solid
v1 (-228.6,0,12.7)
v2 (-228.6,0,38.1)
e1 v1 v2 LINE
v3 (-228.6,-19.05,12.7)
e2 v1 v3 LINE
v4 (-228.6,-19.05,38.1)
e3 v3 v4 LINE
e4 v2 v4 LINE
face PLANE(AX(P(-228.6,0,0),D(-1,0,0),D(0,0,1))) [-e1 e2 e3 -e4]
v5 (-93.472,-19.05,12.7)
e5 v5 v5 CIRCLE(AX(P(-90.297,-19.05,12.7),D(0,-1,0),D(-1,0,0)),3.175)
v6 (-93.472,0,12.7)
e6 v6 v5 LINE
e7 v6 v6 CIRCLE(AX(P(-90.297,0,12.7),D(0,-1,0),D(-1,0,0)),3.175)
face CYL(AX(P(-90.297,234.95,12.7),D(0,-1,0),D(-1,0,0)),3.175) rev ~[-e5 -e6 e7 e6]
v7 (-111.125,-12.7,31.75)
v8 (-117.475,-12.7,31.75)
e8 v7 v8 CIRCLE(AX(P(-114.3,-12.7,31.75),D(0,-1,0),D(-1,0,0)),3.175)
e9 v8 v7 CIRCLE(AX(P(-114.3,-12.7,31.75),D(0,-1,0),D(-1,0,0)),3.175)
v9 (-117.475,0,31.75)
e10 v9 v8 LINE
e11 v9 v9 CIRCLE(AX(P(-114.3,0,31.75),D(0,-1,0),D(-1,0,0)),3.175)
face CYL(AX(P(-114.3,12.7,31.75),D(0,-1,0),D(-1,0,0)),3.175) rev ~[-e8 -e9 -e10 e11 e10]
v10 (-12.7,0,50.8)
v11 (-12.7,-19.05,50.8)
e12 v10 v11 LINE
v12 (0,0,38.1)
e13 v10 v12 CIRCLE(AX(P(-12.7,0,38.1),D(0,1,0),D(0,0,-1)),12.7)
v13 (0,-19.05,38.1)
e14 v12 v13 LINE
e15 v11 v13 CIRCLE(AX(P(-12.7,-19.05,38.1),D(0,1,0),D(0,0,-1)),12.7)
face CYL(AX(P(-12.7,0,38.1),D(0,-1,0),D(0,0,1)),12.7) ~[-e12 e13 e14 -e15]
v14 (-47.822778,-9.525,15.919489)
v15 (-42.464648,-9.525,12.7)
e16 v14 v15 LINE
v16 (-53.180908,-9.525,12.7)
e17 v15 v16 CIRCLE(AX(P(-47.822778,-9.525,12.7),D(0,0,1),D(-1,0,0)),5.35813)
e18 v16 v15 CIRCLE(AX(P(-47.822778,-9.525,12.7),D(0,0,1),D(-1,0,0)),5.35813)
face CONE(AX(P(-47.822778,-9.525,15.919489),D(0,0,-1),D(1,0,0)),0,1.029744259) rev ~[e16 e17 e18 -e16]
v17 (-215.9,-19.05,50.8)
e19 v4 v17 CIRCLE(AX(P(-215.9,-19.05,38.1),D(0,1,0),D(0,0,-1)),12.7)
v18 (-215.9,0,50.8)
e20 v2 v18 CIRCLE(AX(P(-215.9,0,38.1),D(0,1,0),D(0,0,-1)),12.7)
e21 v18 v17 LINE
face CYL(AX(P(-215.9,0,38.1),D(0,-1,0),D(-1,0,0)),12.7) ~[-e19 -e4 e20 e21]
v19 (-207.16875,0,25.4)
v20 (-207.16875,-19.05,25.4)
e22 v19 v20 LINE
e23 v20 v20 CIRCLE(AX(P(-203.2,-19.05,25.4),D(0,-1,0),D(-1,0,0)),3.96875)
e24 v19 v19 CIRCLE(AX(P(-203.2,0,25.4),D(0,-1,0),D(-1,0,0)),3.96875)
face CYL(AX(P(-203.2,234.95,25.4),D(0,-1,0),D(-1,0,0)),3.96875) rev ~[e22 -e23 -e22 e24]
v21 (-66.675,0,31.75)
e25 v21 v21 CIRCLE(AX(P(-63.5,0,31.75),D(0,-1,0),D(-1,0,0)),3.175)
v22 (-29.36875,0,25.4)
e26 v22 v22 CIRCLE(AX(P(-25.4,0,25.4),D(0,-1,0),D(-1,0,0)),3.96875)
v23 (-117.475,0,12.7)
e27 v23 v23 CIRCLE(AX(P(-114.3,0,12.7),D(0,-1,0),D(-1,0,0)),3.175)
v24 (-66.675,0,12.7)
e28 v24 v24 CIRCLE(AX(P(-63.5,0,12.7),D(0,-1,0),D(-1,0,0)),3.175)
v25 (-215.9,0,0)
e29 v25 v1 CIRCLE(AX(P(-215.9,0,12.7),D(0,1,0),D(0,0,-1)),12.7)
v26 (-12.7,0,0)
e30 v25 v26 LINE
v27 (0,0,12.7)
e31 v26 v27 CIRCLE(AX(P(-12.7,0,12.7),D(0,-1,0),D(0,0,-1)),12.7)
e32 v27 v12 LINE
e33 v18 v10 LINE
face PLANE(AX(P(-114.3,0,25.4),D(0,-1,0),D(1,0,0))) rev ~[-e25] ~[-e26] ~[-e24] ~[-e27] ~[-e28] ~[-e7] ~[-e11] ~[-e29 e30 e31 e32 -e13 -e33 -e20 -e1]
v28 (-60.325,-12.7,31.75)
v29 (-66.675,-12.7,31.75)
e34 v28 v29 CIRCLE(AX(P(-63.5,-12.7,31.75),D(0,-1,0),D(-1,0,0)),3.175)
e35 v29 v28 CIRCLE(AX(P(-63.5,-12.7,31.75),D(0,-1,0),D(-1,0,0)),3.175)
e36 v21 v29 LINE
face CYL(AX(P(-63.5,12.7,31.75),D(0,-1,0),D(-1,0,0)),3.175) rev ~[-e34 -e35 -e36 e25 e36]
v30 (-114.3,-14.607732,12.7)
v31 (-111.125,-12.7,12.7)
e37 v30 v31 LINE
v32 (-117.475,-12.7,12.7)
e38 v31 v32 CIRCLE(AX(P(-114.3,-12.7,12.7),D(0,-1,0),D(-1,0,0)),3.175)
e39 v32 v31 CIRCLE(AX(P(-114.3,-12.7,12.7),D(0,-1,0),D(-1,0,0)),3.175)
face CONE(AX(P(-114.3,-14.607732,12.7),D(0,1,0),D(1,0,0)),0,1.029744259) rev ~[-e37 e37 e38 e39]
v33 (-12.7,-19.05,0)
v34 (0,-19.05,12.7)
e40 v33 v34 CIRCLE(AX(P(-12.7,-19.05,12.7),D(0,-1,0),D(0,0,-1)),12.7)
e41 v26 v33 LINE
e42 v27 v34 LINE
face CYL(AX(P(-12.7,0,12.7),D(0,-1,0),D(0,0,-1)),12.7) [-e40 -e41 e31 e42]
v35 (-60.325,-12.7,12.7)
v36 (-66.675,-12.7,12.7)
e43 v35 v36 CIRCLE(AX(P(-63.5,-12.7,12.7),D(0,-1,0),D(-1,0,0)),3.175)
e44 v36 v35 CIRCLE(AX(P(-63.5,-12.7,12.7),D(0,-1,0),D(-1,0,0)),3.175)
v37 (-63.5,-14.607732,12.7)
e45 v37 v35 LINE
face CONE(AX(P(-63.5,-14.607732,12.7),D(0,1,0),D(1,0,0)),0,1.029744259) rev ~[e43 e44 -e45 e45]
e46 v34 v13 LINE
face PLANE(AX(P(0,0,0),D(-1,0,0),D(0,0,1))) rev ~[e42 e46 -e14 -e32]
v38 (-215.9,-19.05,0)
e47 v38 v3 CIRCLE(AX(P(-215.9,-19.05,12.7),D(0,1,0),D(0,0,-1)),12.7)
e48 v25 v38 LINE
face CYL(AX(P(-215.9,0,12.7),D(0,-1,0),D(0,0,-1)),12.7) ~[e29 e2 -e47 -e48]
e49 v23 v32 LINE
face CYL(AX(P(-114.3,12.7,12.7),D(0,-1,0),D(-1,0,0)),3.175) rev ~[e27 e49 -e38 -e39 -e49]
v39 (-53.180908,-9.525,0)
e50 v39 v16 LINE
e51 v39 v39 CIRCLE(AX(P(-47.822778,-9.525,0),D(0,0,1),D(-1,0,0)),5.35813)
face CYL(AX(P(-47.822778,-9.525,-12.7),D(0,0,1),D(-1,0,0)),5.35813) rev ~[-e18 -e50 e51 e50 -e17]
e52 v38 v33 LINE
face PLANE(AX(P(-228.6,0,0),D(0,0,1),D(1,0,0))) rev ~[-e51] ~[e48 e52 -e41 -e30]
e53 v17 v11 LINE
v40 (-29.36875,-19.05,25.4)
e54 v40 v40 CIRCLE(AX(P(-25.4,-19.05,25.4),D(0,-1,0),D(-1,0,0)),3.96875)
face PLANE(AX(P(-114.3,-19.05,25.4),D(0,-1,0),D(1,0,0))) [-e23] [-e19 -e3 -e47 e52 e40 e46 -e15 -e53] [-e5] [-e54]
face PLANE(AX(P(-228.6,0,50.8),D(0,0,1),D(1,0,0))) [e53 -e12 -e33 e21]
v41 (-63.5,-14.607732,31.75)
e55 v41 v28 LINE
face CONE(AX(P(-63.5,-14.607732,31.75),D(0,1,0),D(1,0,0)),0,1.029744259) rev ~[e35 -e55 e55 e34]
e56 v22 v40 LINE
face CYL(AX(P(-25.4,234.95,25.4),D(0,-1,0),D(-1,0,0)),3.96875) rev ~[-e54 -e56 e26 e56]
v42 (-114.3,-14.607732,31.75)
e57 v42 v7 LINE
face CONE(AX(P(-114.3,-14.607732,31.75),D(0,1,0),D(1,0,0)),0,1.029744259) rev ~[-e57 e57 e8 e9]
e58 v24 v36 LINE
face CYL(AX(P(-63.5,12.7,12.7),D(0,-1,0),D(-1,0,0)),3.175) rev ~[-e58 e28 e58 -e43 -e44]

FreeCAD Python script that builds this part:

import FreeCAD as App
import Part
import Sketcher

V = App.Vector
Q = App.Units.Quantity


def edges_at(feature, points):
    """Names of the edges that pass closest to the given points."""
    edges = feature.Shape.Edges
    near = lambda p: min(range(len(edges)), key=lambda i: edges[i].distToShape(Part.Vertex(*p))[0])
    return sorted({f"Edge{near(p) + 1}" for p in points})


def add_polygon(sketch, points):
    """Adds a closed chain of lines whose ends are joined by coincident constraints."""
    first, n = sketch.GeometryCount, len(points)
    for a, b in zip(points, points[1:] + points[:1]):
        sketch.addGeometry(Part.LineSegment(App.Vector(*a, 0), App.Vector(*b, 0)), False)
    for i in range(n):
        sketch.addConstraint(Sketcher.Constraint("Coincident", first + i, 2, first + (i + 1) % n, 1))

doc = App.newDocument("Part")
body = doc.addObject("PartDesign::Body", "Body")

# Sketch on XZ plane
sketch1 = doc.addObject("Sketcher::SketchObject", "Sketch")
body.addObject(sketch1)
sketch1.AttachmentSupport = (doc.XZ_Plane, [""])
sketch1.MapMode = "FlatFace"
add_polygon(sketch1, [(-229, 51), (-229, 0), (0, 0), (0, 51)])  # lines 0-3
sketch1.addConstraint(Sketcher.Constraint("Vertical", 0))
sketch1.addConstraint(Sketcher.Constraint("Horizontal", 1))
sketch1.addConstraint(Sketcher.Constraint("Vertical", 2))
sketch1.addConstraint(Sketcher.Constraint("Horizontal", 3))
sketch1.addConstraint(Sketcher.Constraint("Coincident", 1, 2, -1, 1))
sketch1.addConstraint(Sketcher.Constraint("DistanceX", 1, 1, 1, 2, Q("9 in")))
sketch1.addConstraint(Sketcher.Constraint("DistanceY", 0, 2, 0, 1, Q("2 in")))
pad1 = doc.addObject("PartDesign::Pad", "Pad")
body.addObject(pad1)
pad1.Profile = sketch1
pad1.Length = Q("0.75 in")

# Sketch on XZ plane
sketch2 = doc.addObject("Sketcher::SketchObject", "Sketch001")
body.addObject(sketch2)
sketch2.AttachmentSupport = (doc.XZ_Plane, [""])
sketch2.MapMode = "FlatFace"
sketch2.addGeometry(Part.Circle(V(-203.2, 25.4, 0), V(0, 0, 1), 4), False)
sketch2.addGeometry(Part.Circle(V(-25.4, 25.4, 0), V(0, 0, 1), 4), False)
sketch2.addConstraint(Sketcher.Constraint("Equal", 0, 1))
sketch2.addConstraint(Sketcher.Constraint("Horizontal", 0, 3, 1, 3))
sketch2.addConstraint(Sketcher.Constraint("Diameter", 0, Q("0.3125 in")))
sketch2.addConstraint(Sketcher.Constraint("DistanceX", 0, 3, -1, 1, Q("8 in")))
sketch2.addConstraint(Sketcher.Constraint("DistanceY", -1, 1, 0, 3, Q("1 in")))
sketch2.addConstraint(Sketcher.Constraint("DistanceX", 1, 3, -1, 1, Q("1 in")))
doc.recompute()
hole = doc.addObject("PartDesign::Hole", "Hole")
body.addObject(hole)
hole.Profile = sketch2
hole.ThreadType = "None"
hole.Diameter = Q("0.3125 in")
hole.DepthType = "ThroughAll"
hole.Reversed = True
doc.recompute()

fillet = doc.addObject("PartDesign::Fillet", "Fillet")
body.addObject(fillet)
fillet.Base = (hole, edges_at(hole, [(0, -9.525, 0), (0, -9.525, 50.8)]))
fillet.Radius = Q("0.5 in")

# Sketch on XZ plane
sketch3 = doc.addObject("Sketcher::SketchObject", "Sketch002")
body.addObject(sketch3)
sketch3.AttachmentSupport = (doc.XZ_Plane, [""])
sketch3.MapMode = "FlatFace"
sketch3.addGeometry(Part.Circle(V(-114.3, 31.8, 0), V(0, 0, 1), 3.2), False)
sketch3.addGeometry(Part.Circle(V(-114.3, 12.7, 0), V(0, 0, 1), 3.2), False)
sketch3.addGeometry(Part.Circle(V(-63.5, 12.7, 0), V(0, 0, 1), 3.2), False)
sketch3.addGeometry(Part.Circle(V(-63.5, 31.8, 0), V(0, 0, 1), 3.2), False)
sketch3.addConstraint(Sketcher.Constraint("Equal", 0, 1))
sketch3.addConstraint(Sketcher.Constraint("Equal", 1, 2))
sketch3.addConstraint(Sketcher.Constraint("Equal", 2, 3))
sketch3.addConstraint(Sketcher.Constraint("Horizontal", 1, 3, 2, 3))
sketch3.addConstraint(Sketcher.Constraint("Horizontal", 0, 3, 3, 3))
sketch3.addConstraint(Sketcher.Constraint("Vertical", 0, 3, 1, 3))
sketch3.addConstraint(Sketcher.Constraint("Vertical", 2, 3, 3, 3))
sketch3.addConstraint(Sketcher.Constraint("Diameter", 0, Q("0.25 in")))
sketch3.addConstraint(Sketcher.Constraint("DistanceX", 1, 3, 2, 3, Q("2 in")))
sketch3.addConstraint(Sketcher.Constraint("DistanceX", 0, 3, -1, 1, Q("4.5 in")))
sketch3.addConstraint(Sketcher.Constraint("DistanceY", -1, 1, 1, 3, Q("0.5 in")))
sketch3.addConstraint(Sketcher.Constraint("DistanceY", -1, 1, 0, 3, Q("1.25 in")))
doc.recompute()
hole2 = doc.addObject("PartDesign::Hole", "Hole001")
body.addObject(hole2)
hole2.Profile = sketch3
hole2.ThreadType = "None"
hole2.Diameter = Q("0.25 in")
hole2.DepthType = "Dimension"
hole2.Depth = Q("0.5 in")
hole2.DrillPoint = "Angled"
hole2.DrillPointAngle = 118
hole2.Reversed = True
body2 = doc.addObject("PartDesign::Body", "Body001")
doc.recompute()

mirroring = doc.addObject("Part::Mirroring", "Mirroring")
mirroring.Source = body
mirroring.Base = V(-114.974215, -19.05, 25.4)
mirroring.Normal = V(0, -1, 0)
body2.BaseFeature = mirroring
doc.recompute()
body3 = doc.addObject("PartDesign::Body", "Body002")
doc.recompute()

mirroring2 = doc.addObject("Part::Mirroring", "Mirroring001")
mirroring2.Source = body2
mirroring2.Base = V(-114.974215, -19.05, 25.4)
mirroring2.Normal = V(0, 1, 0)
body3.BaseFeature = mirroring2
doc.recompute()

# Sketch on XZ plane
sketch4 = doc.addObject("Sketcher::SketchObject", "Sketch003")
body3.addObject(sketch4)
sketch4.AttachmentSupport = (doc.getObject("XZ_Plane002"), [""])
sketch4.MapMode = "FlatFace"
sketch4.addGeometry(Part.Circle(V(-90.3, 12.7, 0), V(0, 0, 1), 3.2), False)
sketch4.addConstraint(Sketcher.Constraint("Diameter", 0, Q("0.25 in")))
sketch4.addConstraint(Sketcher.Constraint("DistanceY", -1, 1, 0, 3, Q("0.5 in")))
sketch4.addConstraint(Sketcher.Constraint("DistanceX", 0, 3, -1, 1, Q("3.555 in")))
doc.recompute()
hole3 = doc.addObject("PartDesign::Hole", "Hole002")
body3.addObject(hole3)
hole3.Profile = sketch4
hole3.ThreadType = "None"
hole3.Diameter = Q("0.25 in")
hole3.DepthType = "ThroughAll"
hole3.Reversed = True
doc.recompute()

fillet2 = doc.addObject("PartDesign::Fillet", "Fillet001")
body3.addObject(fillet2)
fillet2.Base = (hole3, edges_at(hole3, [(-228.6, -9.525, 50.8), (-228.6, -9.525, 0)]))
fillet2.Radius = Q("0.5 in")

# Sketch on XY plane
sketch5 = doc.addObject("Sketcher::SketchObject", "Sketch004")
body3.addObject(sketch5)
sketch5.AttachmentSupport = (doc.getObject("XY_Plane002"), [""])
sketch5.MapMode = "FlatFace"
sketch5.addGeometry(Part.Circle(V(-48, -10, 0), V(0, 0, 1), 5), False)
sketch5.addConstraint(Sketcher.Constraint("Diameter", 0, Q("0.4219 in")))
sketch5.addConstraint(Sketcher.Constraint("DistanceY", 0, 3, -1, 1, Q("0.375 in")))
sketch5.addConstraint(Sketcher.Constraint("DistanceX", 0, 3, -1, 1, Q("47.822778 mm")))
doc.recompute()
hole4 = doc.addObject("PartDesign::Hole", "Hole003")
body3.addObject(hole4)
hole4.Profile = sketch5
hole4.ThreadType = "None"
hole4.Diameter = Q("0.4219 in")
hole4.DepthType = "Dimension"
hole4.Depth = Q("0.5 in")
hole4.DrillPoint = "Angled"
hole4.DrillPointAngle = 118
hole4.Reversed = True
body.Visibility = False
body2.Visibility = False
mirroring.Visibility = False
mirroring2.Visibility = False

doc.recompute()
